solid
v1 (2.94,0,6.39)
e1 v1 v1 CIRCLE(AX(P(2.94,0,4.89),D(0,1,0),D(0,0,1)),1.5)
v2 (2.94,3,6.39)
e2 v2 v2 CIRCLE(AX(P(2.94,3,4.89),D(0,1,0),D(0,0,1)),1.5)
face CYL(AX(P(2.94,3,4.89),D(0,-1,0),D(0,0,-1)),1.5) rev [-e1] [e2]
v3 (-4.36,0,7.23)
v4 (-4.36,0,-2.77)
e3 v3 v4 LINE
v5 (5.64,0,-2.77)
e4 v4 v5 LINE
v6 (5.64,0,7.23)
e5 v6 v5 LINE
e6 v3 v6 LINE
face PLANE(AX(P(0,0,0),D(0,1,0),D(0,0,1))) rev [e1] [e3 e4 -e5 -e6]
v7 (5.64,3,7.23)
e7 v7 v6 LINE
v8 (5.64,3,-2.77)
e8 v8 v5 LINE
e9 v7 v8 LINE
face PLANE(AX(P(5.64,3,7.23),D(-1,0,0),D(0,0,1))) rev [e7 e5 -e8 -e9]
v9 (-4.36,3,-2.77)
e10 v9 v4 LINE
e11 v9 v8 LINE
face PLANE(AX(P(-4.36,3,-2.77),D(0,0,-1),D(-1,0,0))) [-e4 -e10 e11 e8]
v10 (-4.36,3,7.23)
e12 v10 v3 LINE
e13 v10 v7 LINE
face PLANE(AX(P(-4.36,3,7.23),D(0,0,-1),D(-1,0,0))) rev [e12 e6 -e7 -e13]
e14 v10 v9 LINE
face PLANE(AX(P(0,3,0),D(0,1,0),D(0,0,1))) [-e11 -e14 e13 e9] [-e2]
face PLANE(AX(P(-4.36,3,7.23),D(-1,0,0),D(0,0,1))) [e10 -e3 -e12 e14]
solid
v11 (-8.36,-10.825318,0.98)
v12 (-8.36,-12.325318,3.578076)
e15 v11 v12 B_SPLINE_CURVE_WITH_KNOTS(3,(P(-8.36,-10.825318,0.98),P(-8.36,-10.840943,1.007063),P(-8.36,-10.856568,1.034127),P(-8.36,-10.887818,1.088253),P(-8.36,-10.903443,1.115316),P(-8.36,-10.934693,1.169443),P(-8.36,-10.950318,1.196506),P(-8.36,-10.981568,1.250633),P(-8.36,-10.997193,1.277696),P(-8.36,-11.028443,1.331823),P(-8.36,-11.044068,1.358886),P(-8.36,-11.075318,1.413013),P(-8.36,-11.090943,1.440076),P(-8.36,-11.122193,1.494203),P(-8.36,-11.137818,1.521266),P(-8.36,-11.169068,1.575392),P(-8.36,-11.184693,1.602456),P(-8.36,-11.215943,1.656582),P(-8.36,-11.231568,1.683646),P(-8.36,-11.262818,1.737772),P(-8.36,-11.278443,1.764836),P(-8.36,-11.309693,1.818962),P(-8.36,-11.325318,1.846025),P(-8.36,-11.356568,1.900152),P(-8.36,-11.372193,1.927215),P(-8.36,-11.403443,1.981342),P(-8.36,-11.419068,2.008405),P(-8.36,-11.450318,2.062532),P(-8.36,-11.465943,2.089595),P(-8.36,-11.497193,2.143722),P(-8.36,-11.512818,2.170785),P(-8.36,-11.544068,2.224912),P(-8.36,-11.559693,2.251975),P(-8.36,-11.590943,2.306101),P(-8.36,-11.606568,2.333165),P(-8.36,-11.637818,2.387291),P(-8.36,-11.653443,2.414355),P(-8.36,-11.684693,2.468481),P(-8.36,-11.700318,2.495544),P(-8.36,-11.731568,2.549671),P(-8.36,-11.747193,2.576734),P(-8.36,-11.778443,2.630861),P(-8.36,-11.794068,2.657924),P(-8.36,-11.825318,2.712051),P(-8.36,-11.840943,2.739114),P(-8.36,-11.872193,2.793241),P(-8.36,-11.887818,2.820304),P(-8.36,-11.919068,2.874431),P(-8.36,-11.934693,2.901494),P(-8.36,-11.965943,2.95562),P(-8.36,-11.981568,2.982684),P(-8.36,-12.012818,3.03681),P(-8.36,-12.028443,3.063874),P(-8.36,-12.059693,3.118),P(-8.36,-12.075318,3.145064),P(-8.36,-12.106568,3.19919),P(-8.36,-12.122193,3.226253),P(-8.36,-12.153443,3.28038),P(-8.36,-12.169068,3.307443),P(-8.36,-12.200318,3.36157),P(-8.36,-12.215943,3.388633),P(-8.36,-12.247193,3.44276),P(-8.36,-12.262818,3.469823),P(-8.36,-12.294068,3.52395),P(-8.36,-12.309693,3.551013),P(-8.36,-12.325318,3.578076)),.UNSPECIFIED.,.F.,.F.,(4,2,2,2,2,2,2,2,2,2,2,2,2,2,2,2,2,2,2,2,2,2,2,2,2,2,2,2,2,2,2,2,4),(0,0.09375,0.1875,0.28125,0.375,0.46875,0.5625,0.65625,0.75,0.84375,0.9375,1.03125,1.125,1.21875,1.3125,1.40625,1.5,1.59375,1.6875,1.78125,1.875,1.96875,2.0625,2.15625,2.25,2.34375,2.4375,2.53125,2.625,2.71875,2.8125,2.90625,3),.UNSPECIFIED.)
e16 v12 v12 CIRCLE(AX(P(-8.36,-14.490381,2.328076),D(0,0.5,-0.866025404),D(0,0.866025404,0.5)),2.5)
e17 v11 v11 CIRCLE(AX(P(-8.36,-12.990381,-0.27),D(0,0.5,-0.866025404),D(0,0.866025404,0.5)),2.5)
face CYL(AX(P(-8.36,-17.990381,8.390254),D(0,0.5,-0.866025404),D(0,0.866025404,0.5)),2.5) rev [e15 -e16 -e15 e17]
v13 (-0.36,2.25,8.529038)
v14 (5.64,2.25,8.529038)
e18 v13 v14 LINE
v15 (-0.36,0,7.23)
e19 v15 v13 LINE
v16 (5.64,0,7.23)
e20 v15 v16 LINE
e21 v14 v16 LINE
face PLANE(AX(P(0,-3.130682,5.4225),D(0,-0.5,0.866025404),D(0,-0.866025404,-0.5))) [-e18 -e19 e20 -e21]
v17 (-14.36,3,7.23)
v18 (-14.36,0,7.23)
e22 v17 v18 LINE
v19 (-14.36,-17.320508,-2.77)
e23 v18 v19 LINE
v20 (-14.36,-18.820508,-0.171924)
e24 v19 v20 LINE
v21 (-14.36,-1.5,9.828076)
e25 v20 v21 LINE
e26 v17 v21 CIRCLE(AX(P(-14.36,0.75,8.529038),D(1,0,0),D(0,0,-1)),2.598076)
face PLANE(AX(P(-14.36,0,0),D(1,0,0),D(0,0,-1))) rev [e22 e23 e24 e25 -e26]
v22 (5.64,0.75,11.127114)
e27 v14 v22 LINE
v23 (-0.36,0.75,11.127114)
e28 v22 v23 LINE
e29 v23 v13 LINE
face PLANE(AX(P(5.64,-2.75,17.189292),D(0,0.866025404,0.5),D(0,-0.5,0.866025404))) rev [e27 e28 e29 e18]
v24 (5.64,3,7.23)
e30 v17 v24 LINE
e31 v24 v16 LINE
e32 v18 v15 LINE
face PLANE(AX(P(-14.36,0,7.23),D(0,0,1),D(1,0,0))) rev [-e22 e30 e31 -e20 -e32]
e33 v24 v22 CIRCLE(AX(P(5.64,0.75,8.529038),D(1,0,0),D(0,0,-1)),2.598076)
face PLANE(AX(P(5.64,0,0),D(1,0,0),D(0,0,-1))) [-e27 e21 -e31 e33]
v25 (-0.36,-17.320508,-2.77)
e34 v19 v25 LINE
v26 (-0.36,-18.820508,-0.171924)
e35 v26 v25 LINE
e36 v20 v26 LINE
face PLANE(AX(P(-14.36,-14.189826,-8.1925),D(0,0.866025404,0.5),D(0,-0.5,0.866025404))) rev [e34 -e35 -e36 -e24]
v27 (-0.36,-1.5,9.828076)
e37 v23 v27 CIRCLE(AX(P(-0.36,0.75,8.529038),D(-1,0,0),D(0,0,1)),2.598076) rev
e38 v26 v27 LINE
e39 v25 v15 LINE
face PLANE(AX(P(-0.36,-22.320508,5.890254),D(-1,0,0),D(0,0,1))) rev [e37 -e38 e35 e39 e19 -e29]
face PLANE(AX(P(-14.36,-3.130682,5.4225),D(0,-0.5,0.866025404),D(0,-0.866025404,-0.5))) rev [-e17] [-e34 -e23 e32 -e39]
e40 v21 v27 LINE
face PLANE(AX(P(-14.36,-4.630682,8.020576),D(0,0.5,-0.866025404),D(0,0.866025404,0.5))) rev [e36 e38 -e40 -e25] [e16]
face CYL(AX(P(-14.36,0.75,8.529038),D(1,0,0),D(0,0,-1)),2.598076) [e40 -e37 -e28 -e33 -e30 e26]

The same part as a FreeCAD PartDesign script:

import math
import FreeCAD as App
import Part
import Sketcher
from FreeCAD import Vector
Q = App.Units.Quantity

doc = App.newDocument("Part")
body = doc.addObject("PartDesign::Body", "Body")

sketch1 = body.newObject("Sketcher::SketchObject", "Sketch")
sketch1.AttachmentSupport = (doc.getObject("XZ_Plane"), [""])
sketch1.MapMode = "FlatFace"
sketch1.addGeometry([
    Part.LineSegment(Vector(-4.36, -2.77, 0), Vector(-4.36, 7.23, 0)),
    Part.LineSegment(Vector(-4.36, 7.23, 0), Vector(5.64, 7.23, 0)),
    Part.LineSegment(Vector(5.64, 7.23, 0), Vector(5.64, -2.77, 0)),
    Part.LineSegment(Vector(5.64, -2.77, 0), Vector(-4.36, -2.77, 0)),
    Part.Circle(Vector(2.94, 4.89, 0), Vector(0, 0, 1), 1.5),
], False)
sketch1.addConstraint([
    Sketcher.Constraint("Coincident", 0, 2, 1, 1),
    Sketcher.Constraint("Coincident", 1, 2, 2, 1),
    Sketcher.Constraint("Coincident", 2, 2, 3, 1),
    Sketcher.Constraint("Coincident", 3, 2, 0, 1),
    Sketcher.Constraint("Vertical", 0),
    Sketcher.Constraint("Horizontal", 1),
    Sketcher.Constraint("Vertical", 2),
    Sketcher.Constraint("Horizontal", 3),
    Sketcher.Constraint("Equal", 3, 0),
    Sketcher.Constraint("Diameter", 4, 3.0),
    Sketcher.Constraint("DistanceX", 1, 1, 1, 2, 10.0),
    Sketcher.Constraint("DistanceX", 0, 2, 4, 3, 7.3),
    Sketcher.Constraint("DistanceX", -1, 1, 4, 3, 2.94),
    Sketcher.Constraint("DistanceY", -1, 1, 4, 3, 4.89),
    Sketcher.Constraint("DistanceY", -1, 1, 0, 2, 7.23),
])
pad1 = body.newObject("PartDesign::Pad", "Pad")
pad1.Profile = sketch1
pad1.Length = 3
pad1.Reversed = True
body2 = doc.addObject("PartDesign::Body", "Body001")

sketch2 = body2.newObject("Sketcher::SketchObject", "Sketch001")
sketch2.AttachmentSupport = (doc.getObject("YZ_Plane001"), [""])
sketch2.MapMode = "FlatFace"
sketch2.AttachmentOffset = App.Placement(Vector(0, 0, 5.64), App.Rotation())
sketch2.addGeometry([
    Part.ArcOfCircle(Part.Circle(Vector(0.75, 8.529038, 0), Vector(0, 0, 1), 2.598076), math.radians(-30), math.radians(150)),
    Part.LineSegment(Vector(-1.5, 9.828076, 0), Vector(-18.820508, -0.171924, 0)),
    Part.LineSegment(Vector(-18.820508, -0.171924, 0), Vector(-17.320508, -2.77, 0)),
    Part.LineSegment(Vector(-17.320508, -2.77, 0), Vector(0, 7.23, 0)),
    Part.LineSegment(Vector(0, 7.23, 0), Vector(3, 7.23, 0)),
], False)
sketch2.addConstraint([
    Sketcher.Constraint("Coincident", 0, 2, 1, 1),
    Sketcher.Constraint("Coincident", 1, 2, 2, 1),
    Sketcher.Constraint("Coincident", 2, 2, 3, 1),
    Sketcher.Constraint("Coincident", 3, 2, 4, 1),
    Sketcher.Constraint("Coincident", 4, 2, 0, 1),
    Sketcher.Constraint("Horizontal", 4),
    Sketcher.Constraint("PointOnObject", 3, 2, -2),
    Sketcher.Constraint("Perpendicular", 1, 2),
    Sketcher.Constraint("Perpendicular", 2, 3),
    Sketcher.Constraint("Equal", 1, 3),
    Sketcher.Constraint("DistanceX", 4, 1, 4, 2, 3.0),
    Sketcher.Constraint("Angle", 1, Q("-150 deg")),
    Sketcher.Constraint("Distance", 1, 20.0),
    Sketcher.Constraint("Distance", 2, 3.0),
    Sketcher.Constraint("DistanceX", -1, 1, 0, 3, 0.75),
    Sketcher.Constraint("DistanceY", 2, 2, -1, 1, 2.77),
])
pad2 = body2.newObject("PartDesign::Pad", "Pad001")
pad2.Profile = sketch2
pad2.Length = 20
pad2.Reversed = True

sketch3 = body2.newObject("Sketcher::SketchObject", "Sketch002")
sketch3.Placement = App.Placement(Vector(0, -3.130682, 5.4225), App.Rotation(Vector(-1, 0, 0), Vector(0, 0.866025404, 0.5), Vector(0, 0.5, -0.866025404), "ZXY"))
sketch3.addGeometry(Part.Circle(Vector(8.36, -11.385, 0), Vector(0, 0, 1), 2.5), False)
sketch3.addConstraint([
    Sketcher.Constraint("Diameter", 0, 5.0),
    Sketcher.Constraint("DistanceX", -1, 1, 0, 3, 8.36),
    Sketcher.Constraint("DistanceY", 0, 3, -1, 1, 11.385),
])
pocket1 = body2.newObject("PartDesign::Pocket", "Pocket")
pocket1.Profile = sketch3
pocket1.Length = 10

sketch4 = body2.newObject("Sketcher::SketchObject", "Sketch003")
sketch4.Placement = App.Placement(Vector(0, -3.130682, 5.4225), App.Rotation(Vector(-1, 0, 0), Vector(0, 0.866025404, 0.5), Vector(0, 0.5, -0.866025404), "ZXY"))
sketch4.addGeometry([
    Part.LineSegment(Vector(-5.64, 6.213076, 0), Vector(-5.64, -16.385, 0)),
    Part.LineSegment(Vector(-5.64, -16.385, 0), Vector(0.36, -16.385, 0)),
    Part.LineSegment(Vector(0.36, -16.385, 0), Vector(0.36, 6.213076, 0)),
    Part.LineSegment(Vector(0.36, 6.213076, 0), Vector(-5.64, 6.213076, 0)),
], False)
sketch4.addConstraint([
    Sketcher.Constraint("Coincident", 0, 2, 1, 1),
    Sketcher.Constraint("Coincident", 1, 2, 2, 1),
    Sketcher.Constraint("Coincident", 2, 2, 3, 1),
    Sketcher.Constraint("Coincident", 3, 2, 0, 1),
    Sketcher.Constraint("Vertical", 0),
    Sketcher.Constraint("Horizontal", 1),
    Sketcher.Constraint("Vertical", 2),
    Sketcher.Constraint("Horizontal", 3),
    Sketcher.Constraint("DistanceX", 1, 1, 1, 2, 6.0),
    Sketcher.Constraint("DistanceX", 0, 2, -1, 1, 5.64),
    Sketcher.Constraint("DistanceY", 0, 2, -1, 1, 16.385),
    Sketcher.Constraint("DistanceY", 0, 2, 0, 1, 22.598076),
])
pocket2 = body2.newObject("PartDesign::Pocket", "Pocket001")
pocket2.Profile = sketch4
pocket2.Length = 10

doc.recompute()
